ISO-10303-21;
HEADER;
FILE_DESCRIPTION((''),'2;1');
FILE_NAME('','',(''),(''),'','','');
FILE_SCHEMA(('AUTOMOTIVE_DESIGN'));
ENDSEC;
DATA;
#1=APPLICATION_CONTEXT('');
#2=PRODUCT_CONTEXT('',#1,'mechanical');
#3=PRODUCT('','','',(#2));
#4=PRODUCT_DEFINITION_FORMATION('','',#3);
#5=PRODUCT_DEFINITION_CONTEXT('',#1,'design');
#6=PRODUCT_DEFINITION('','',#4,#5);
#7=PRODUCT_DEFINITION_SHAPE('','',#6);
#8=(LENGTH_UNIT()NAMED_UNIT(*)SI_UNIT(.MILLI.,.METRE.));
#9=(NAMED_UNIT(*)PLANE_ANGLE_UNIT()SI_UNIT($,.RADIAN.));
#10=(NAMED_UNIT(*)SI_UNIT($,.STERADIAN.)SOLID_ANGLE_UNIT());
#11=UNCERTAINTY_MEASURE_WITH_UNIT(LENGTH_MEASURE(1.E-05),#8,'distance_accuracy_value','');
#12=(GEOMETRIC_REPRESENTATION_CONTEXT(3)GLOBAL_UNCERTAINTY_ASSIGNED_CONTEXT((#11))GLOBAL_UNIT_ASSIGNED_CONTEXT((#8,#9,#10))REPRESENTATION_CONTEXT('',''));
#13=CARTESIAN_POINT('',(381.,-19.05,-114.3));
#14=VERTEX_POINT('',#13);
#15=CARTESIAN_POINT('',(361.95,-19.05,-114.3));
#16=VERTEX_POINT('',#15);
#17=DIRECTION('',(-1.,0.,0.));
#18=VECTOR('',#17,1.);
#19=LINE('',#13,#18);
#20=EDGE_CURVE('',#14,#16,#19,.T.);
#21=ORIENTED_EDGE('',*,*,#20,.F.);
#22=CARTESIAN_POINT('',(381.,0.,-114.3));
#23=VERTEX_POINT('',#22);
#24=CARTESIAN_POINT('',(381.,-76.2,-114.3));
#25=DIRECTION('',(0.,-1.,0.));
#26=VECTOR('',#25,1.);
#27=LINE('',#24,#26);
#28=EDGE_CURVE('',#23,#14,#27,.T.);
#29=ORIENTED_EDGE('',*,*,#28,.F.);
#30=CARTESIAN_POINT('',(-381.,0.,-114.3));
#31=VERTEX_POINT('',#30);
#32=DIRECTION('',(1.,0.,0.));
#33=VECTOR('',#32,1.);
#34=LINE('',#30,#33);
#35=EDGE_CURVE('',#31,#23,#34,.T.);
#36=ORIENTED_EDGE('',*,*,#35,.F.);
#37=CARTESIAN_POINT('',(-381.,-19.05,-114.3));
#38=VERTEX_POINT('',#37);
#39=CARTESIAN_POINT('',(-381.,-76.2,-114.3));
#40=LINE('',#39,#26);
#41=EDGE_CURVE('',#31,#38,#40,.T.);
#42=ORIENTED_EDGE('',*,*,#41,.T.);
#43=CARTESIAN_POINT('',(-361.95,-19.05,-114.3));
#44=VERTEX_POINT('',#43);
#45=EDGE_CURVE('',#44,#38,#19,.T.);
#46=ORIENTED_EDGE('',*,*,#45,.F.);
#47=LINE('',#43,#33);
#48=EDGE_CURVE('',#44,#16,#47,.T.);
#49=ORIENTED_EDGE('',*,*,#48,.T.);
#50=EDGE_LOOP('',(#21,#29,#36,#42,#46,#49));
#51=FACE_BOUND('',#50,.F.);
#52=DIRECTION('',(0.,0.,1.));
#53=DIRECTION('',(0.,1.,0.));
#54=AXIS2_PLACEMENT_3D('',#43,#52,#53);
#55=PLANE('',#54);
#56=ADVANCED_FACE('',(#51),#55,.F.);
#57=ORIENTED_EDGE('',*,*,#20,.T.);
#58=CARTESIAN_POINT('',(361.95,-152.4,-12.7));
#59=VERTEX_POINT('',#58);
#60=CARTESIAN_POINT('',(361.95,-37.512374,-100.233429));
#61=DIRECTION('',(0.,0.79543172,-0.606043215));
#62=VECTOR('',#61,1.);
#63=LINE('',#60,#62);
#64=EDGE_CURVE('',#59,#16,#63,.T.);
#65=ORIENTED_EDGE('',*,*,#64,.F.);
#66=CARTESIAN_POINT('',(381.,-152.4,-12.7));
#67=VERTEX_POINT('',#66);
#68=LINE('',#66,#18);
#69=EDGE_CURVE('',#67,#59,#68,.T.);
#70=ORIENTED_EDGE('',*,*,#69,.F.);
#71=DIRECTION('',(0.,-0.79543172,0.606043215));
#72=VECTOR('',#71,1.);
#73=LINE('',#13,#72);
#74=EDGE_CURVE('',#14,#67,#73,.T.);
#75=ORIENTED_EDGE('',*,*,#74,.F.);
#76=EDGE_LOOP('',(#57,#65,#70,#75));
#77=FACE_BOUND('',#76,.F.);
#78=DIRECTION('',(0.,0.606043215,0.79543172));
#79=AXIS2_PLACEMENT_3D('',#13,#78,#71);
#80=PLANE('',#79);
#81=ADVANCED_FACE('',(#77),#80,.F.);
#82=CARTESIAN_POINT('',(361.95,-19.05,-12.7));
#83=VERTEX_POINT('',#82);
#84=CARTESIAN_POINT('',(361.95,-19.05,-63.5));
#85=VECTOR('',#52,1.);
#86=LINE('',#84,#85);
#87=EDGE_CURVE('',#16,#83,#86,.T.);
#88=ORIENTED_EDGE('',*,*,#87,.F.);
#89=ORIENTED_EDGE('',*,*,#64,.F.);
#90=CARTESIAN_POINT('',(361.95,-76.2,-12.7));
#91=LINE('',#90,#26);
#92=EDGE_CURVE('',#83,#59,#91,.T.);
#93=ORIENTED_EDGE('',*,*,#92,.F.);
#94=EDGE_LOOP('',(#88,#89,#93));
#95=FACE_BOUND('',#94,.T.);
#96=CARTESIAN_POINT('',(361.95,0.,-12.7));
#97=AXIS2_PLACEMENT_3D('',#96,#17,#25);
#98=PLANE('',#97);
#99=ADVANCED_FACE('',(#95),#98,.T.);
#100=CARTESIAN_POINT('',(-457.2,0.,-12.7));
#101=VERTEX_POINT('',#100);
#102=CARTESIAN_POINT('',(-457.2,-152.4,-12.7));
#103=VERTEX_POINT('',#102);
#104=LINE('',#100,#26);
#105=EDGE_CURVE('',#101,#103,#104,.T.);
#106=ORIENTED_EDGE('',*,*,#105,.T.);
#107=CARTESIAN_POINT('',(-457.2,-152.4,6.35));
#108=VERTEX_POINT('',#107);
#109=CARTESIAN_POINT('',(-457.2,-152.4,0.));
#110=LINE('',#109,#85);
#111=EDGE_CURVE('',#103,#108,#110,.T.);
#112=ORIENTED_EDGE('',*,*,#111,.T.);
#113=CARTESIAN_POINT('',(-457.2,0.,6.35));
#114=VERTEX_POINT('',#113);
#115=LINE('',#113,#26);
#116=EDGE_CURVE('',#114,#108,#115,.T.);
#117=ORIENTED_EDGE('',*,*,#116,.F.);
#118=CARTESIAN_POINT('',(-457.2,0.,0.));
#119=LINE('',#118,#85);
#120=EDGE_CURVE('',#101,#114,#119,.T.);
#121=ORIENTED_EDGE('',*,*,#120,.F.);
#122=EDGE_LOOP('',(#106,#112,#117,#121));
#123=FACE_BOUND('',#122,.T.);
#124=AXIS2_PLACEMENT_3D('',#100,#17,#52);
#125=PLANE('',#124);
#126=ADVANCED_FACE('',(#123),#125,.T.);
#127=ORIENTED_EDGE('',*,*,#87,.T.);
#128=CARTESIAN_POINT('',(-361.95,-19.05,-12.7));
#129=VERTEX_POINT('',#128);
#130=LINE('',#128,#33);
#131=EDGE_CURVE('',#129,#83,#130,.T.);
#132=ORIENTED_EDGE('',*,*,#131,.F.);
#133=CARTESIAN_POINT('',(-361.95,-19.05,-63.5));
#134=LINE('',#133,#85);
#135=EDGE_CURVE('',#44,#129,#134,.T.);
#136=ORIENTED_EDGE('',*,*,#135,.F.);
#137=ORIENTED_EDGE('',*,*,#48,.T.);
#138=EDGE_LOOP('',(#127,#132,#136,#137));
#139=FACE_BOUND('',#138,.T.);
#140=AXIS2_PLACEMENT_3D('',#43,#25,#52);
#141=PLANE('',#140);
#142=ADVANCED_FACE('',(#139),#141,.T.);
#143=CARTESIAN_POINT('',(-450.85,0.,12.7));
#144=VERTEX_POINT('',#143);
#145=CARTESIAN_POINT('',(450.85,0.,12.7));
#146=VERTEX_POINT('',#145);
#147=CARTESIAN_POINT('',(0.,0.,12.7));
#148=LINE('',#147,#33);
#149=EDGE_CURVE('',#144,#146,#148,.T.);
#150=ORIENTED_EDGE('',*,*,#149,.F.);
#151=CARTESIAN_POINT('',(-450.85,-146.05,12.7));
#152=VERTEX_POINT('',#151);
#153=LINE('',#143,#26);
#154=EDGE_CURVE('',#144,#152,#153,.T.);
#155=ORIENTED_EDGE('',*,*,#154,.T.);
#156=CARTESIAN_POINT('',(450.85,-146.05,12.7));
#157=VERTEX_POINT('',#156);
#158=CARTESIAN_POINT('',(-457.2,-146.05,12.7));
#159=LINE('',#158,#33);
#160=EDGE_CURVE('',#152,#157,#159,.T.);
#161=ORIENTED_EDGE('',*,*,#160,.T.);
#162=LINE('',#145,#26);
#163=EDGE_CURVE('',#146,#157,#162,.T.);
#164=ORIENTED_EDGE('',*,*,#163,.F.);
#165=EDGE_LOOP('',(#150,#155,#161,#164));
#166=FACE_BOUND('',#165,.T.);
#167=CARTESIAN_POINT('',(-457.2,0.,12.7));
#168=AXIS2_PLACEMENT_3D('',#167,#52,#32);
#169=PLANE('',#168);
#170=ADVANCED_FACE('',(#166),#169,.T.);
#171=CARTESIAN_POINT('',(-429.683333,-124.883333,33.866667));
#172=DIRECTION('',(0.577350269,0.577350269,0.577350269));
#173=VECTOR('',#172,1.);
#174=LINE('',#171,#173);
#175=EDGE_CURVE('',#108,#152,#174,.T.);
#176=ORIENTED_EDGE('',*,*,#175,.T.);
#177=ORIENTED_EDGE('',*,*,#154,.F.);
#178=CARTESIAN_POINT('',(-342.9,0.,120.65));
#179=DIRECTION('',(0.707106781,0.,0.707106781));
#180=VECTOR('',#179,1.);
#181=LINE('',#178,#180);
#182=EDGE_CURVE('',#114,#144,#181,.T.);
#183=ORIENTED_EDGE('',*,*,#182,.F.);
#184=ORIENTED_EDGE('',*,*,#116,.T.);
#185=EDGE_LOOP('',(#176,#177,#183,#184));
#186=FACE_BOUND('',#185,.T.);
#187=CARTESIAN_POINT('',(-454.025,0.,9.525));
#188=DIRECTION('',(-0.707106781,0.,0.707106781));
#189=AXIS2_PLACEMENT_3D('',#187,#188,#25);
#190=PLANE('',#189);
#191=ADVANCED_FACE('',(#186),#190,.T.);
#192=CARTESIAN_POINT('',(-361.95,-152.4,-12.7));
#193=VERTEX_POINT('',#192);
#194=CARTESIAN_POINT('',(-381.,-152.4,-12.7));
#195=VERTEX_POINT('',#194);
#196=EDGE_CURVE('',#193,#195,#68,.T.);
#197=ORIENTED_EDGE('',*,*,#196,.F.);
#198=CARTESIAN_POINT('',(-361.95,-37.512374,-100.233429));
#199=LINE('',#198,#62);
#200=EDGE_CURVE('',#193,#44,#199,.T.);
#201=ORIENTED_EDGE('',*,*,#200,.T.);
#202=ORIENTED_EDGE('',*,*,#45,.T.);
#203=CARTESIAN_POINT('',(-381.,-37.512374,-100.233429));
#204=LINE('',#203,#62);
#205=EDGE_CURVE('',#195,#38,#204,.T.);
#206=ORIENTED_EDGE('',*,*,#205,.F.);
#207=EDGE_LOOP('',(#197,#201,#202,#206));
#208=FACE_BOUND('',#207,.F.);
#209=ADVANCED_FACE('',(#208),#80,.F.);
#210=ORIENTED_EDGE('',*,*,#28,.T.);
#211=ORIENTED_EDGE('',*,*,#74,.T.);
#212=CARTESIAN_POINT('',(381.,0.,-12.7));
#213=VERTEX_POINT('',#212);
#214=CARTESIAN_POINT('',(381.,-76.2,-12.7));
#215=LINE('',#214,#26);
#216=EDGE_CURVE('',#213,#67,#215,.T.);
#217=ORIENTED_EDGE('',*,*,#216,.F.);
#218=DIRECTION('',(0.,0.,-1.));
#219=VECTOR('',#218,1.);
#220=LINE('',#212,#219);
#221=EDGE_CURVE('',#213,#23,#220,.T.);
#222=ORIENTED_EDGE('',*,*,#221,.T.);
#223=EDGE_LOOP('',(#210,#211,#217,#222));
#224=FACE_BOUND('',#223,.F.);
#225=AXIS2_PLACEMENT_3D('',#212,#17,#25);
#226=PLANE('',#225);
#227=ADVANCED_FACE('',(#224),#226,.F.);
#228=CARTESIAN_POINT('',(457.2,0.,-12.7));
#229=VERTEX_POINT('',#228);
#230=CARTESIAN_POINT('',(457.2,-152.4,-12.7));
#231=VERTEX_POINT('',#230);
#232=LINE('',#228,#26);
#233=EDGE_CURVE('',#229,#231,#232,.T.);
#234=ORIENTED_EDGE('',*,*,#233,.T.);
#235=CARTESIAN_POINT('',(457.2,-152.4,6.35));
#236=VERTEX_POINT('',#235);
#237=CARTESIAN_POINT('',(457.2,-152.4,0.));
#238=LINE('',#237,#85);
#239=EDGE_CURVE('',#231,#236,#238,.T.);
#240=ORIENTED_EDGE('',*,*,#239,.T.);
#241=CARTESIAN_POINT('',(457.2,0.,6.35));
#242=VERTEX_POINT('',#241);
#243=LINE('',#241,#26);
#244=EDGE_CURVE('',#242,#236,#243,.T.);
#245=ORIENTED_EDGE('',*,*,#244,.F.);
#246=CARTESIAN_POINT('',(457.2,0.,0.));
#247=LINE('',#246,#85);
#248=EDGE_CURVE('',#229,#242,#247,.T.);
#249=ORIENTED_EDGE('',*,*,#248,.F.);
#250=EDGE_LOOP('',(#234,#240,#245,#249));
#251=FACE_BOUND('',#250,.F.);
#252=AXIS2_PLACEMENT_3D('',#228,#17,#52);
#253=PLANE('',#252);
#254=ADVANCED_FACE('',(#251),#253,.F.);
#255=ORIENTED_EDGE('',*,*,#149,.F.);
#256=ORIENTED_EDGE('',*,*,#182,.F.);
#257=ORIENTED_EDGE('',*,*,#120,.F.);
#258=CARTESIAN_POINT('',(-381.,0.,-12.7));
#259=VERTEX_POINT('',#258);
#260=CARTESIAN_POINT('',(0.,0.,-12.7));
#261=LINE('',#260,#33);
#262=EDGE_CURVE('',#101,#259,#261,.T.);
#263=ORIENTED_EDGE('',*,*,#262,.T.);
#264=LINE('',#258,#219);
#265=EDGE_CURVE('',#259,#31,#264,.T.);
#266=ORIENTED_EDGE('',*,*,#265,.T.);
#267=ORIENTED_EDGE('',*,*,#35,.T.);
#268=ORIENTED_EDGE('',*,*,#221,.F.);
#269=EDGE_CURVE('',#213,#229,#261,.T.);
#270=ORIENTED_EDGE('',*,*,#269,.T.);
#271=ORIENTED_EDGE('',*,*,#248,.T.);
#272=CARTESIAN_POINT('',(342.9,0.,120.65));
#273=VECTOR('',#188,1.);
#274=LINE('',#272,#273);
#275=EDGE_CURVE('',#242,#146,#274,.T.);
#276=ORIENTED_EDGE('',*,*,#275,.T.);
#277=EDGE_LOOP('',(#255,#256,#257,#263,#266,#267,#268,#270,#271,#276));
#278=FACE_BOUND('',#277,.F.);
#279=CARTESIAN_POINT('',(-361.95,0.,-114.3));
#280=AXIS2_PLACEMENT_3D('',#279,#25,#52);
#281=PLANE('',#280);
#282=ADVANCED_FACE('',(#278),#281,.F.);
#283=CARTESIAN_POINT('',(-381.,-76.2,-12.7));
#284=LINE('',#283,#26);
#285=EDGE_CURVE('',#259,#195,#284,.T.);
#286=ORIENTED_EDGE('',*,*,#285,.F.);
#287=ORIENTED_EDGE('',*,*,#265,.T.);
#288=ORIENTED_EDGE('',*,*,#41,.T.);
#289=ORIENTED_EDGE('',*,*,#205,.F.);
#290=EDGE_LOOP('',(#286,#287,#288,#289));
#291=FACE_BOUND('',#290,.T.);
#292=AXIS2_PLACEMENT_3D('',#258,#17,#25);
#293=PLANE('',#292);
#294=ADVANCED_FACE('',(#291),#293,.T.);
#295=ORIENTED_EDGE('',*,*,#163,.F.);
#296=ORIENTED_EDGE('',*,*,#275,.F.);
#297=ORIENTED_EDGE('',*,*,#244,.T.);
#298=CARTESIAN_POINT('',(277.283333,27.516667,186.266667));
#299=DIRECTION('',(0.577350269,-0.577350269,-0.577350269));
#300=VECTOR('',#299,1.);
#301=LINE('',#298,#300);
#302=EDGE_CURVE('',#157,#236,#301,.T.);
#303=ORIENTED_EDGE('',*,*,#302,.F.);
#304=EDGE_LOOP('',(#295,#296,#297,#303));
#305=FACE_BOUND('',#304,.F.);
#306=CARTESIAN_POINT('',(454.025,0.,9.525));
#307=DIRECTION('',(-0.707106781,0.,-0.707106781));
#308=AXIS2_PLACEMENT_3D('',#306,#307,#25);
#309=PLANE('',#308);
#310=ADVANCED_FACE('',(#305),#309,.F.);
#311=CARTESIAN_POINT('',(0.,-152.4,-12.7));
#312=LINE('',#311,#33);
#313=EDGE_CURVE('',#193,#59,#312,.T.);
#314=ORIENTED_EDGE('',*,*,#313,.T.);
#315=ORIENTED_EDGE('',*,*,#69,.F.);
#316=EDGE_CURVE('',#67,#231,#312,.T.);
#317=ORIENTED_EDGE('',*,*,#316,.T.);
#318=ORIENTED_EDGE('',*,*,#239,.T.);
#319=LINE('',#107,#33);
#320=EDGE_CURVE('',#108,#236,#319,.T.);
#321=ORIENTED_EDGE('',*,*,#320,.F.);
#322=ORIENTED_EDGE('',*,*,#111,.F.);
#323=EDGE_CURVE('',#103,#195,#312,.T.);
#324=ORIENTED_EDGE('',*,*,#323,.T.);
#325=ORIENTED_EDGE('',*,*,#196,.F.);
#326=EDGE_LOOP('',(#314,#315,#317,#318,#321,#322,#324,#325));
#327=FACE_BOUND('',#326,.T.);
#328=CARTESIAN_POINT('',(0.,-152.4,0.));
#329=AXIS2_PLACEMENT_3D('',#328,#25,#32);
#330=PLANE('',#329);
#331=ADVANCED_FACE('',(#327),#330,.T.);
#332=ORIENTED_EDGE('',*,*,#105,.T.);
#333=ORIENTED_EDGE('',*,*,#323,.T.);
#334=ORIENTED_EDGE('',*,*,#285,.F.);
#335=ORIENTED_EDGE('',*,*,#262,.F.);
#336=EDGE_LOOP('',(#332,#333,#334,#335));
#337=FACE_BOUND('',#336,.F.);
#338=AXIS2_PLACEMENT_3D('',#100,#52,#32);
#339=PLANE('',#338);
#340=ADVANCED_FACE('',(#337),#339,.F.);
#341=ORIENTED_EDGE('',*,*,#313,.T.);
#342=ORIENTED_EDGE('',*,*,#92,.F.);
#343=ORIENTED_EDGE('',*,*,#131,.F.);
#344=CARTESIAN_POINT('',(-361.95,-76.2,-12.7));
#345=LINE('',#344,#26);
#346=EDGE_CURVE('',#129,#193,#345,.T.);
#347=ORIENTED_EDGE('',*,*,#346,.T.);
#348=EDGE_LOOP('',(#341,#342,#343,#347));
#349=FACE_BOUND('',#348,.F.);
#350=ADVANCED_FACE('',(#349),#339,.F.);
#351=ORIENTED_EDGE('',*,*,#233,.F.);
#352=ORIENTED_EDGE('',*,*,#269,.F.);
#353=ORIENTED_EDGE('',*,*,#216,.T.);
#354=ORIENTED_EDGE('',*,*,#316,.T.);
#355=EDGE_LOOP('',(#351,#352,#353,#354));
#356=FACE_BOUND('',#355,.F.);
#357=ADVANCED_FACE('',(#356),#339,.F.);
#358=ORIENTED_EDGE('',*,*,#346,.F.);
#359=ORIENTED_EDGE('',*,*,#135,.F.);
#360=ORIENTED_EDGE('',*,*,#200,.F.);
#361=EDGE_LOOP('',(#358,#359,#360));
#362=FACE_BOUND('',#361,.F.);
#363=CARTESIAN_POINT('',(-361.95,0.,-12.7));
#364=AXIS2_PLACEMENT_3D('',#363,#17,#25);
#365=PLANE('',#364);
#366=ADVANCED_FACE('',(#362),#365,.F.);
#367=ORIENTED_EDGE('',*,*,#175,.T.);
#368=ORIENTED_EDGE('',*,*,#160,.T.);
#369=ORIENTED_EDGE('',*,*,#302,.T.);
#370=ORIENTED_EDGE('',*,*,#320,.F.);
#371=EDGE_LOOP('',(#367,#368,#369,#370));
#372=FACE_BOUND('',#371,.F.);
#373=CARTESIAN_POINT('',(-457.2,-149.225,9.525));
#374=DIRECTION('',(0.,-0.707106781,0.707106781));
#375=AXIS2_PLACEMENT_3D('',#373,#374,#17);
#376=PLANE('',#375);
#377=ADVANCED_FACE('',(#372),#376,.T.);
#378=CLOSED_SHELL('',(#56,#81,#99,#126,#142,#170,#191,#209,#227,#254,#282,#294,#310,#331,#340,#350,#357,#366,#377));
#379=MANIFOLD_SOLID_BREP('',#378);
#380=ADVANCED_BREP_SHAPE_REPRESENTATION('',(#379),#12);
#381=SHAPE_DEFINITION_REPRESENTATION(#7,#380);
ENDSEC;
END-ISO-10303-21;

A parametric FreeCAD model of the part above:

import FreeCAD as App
import Part
import Sketcher
from FreeCAD import Vector
Q = App.Units.Quantity


def edges_at(feature, points):
    """Names of the edges that pass closest to the given points."""
    edges = feature.Shape.Edges
    near = lambda p: min(range(len(edges)), key=lambda i: edges[i].distToShape(Part.Vertex(*p))[0])
    return sorted({f"Edge{near(p) + 1}" for p in points})


def add_polygon(sketch, points):
    """Adds a closed chain of lines whose ends are joined by coincident constraints."""
    first, n = sketch.GeometryCount, len(points)
    for a, b in zip(points, points[1:] + points[:1]):
        sketch.addGeometry(Part.LineSegment(App.Vector(*a, 0), App.Vector(*b, 0)), False)
    for i in range(n):
        sketch.addConstraint(Sketcher.Constraint("Coincident", first + i, 2, first + (i + 1) % n, 1))

doc = App.newDocument("Part")
body = doc.addObject("PartDesign::Body", "Body")

sketch1 = body.newObject("Sketcher::SketchObject", "Sketch")
sketch1.AttachmentSupport = (doc.getObject("XZ_Plane"), [""])
sketch1.MapMode = "FlatFace"
add_polygon(sketch1, [(-457.2, 12.7), (-457.2, -12.7), (457.2, -12.7), (457.2, 12.7)])
sketch1.addConstraint(Sketcher.Constraint("Vertical", 0))
sketch1.addConstraint(Sketcher.Constraint("Horizontal", 1))
sketch1.addConstraint(Sketcher.Constraint("Vertical", 2))
sketch1.addConstraint(Sketcher.Constraint("Horizontal", 3))
sketch1.addConstraint(Sketcher.Constraint("Symmetric", 0, 2, 2, 2, -1, 1))
sketch1.addConstraint(Sketcher.Constraint("DistanceX", 1, 1, 1, 2, Q("36 in")))
sketch1.addConstraint(Sketcher.Constraint("DistanceY", 0, 2, 0, 1, Q("1 in")))
pad1 = body.newObject("PartDesign::Pad", "Pad")
pad1.Profile = sketch1
pad1.Length = Q("6 in")
doc.recompute()

chamfer = body.newObject("PartDesign::Chamfer", "Chamfer")
chamfer.Base = (pad1, edges_at(pad1, [(-457.2, -76.2, 12.7), (0, -152.4, 12.7), (457.2, -76.2, 12.7)]))
chamfer.Size = Q("0.25 in")

sketch2 = body.newObject("Sketcher::SketchObject", "Sketch001")
sketch2.AttachmentSupport = (doc.getObject("XY_Plane"), [""])
sketch2.MapMode = "FlatFace"
sketch2.AttachmentOffset = App.Placement(Vector(0, 0, -0.5 * 25.4), App.Rotation())
add_polygon(sketch2, [(-381, -152.4), (-381, 0), (-361.95, 0), (-361.95, -152.4)])
add_polygon(sketch2, [(361.95, -152.4), (361.95, 0), (381, 0), (381, -152.4)])
sketch2.addConstraint(Sketcher.Constraint("Vertical", 0))
sketch2.addConstraint(Sketcher.Constraint("Horizontal", 1))
sketch2.addConstraint(Sketcher.Constraint("Vertical", 2))
sketch2.addConstraint(Sketcher.Constraint("Horizontal", 3))
sketch2.addConstraint(Sketcher.Constraint("Vertical", 4))
sketch2.addConstraint(Sketcher.Constraint("Horizontal", 5))
sketch2.addConstraint(Sketcher.Constraint("Vertical", 6))
sketch2.addConstraint(Sketcher.Constraint("Horizontal", 7))
sketch2.addConstraint(Sketcher.Constraint("Symmetric", 1, 2, 4, 2, -1, 1))
sketch2.addConstraint(Sketcher.Constraint("Symmetric", 0, 2, 5, 2, -2))
sketch2.addConstraint(Sketcher.Constraint("Horizontal", 3, 2, 6, 2))
sketch2.addConstraint(Sketcher.Constraint("DistanceY", 0, 1, 0, 2, Q("6 in")))
sketch2.addConstraint(Sketcher.Constraint("DistanceX", 0, 2, -1, 1, Q("15 in")))
sketch2.addConstraint(Sketcher.Constraint("DistanceX", 1, 1, 1, 2, Q("0.75 in")))
pad2 = body.newObject("PartDesign::Pad", "Pad001")
pad2.Profile = sketch2
pad2.Length = Q("4 in")
pad2.Reversed = True

sketch3 = body.newObject("Sketcher::SketchObject", "Sketch002")
sketch3.AttachmentSupport = (doc.getObject("YZ_Plane"), [""])
sketch3.MapMode = "FlatFace"
sketch3.AttachmentOffset = App.Placement(Vector(0, 0, 15 * 25.4), App.Rotation())
add_polygon(sketch3, [(-19.05, -114.3), (-152.4, -12.7), (-152.4, -114.3)])
sketch3.addConstraint(Sketcher.Constraint("Vertical", 1))
sketch3.addConstraint(Sketcher.Constraint("Horizontal", 2))
sketch3.addConstraint(Sketcher.Constraint("DistanceY", 1, 2, 1, 1, Q("4 in")))
sketch3.addConstraint(Sketcher.Constraint("DistanceX", 0, 2, -1, 1, Q("6 in")))
sketch3.addConstraint(Sketcher.Constraint("DistanceX", 2, 1, 2, 2, Q("5.25 in")))
sketch3.addConstraint(Sketcher.Constraint("DistanceY", 0, 2, -1, 1, Q("0.5 in")))
pocket1 = body.newObject("PartDesign::Pocket", "Pocket")
pocket1.Profile = sketch3
pocket1.Type = "ThroughAll"

sketch4 = body.newObject("Sketcher::SketchObject", "Sketch003")
sketch4.AttachmentSupport = (doc.getObject("YZ_Plane"), [""])
sketch4.MapMode = "FlatFace"
sketch4.AttachmentOffset = App.Placement(Vector(0, 0, -14.25 * 25.4), App.Rotation())
add_polygon(sketch4, [(-19.05, -12.7), (-19.05, -114.3), (0, -114.3), (0, -12.7)])
sketch4.addConstraint(Sketcher.Constraint("Vertical", 0))
sketch4.addConstraint(Sketcher.Constraint("Horizontal", 1))
sketch4.addConstraint(Sketcher.Constraint("Vertical", 2))
sketch4.addConstraint(Sketcher.Constraint("Horizontal", 3))
sketch4.addConstraint(Sketcher.Constraint("PointOnObject", 1, 2, -2))
sketch4.addConstraint(Sketcher.Constraint("DistanceY", 0, 2, 0, 1, Q("4 in")))
sketch4.addConstraint(Sketcher.Constraint("DistanceX", 1, 1, 1, 2, Q("0.75 in")))
sketch4.addConstraint(Sketcher.Constraint("DistanceY", 0, 2, -1, 1, Q("4.5 in")))
pad3 = body.newObject("PartDesign::Pad", "Pad002")
pad3.Profile = sketch4
pad3.Type = "UpToLast"

doc.recompute()
